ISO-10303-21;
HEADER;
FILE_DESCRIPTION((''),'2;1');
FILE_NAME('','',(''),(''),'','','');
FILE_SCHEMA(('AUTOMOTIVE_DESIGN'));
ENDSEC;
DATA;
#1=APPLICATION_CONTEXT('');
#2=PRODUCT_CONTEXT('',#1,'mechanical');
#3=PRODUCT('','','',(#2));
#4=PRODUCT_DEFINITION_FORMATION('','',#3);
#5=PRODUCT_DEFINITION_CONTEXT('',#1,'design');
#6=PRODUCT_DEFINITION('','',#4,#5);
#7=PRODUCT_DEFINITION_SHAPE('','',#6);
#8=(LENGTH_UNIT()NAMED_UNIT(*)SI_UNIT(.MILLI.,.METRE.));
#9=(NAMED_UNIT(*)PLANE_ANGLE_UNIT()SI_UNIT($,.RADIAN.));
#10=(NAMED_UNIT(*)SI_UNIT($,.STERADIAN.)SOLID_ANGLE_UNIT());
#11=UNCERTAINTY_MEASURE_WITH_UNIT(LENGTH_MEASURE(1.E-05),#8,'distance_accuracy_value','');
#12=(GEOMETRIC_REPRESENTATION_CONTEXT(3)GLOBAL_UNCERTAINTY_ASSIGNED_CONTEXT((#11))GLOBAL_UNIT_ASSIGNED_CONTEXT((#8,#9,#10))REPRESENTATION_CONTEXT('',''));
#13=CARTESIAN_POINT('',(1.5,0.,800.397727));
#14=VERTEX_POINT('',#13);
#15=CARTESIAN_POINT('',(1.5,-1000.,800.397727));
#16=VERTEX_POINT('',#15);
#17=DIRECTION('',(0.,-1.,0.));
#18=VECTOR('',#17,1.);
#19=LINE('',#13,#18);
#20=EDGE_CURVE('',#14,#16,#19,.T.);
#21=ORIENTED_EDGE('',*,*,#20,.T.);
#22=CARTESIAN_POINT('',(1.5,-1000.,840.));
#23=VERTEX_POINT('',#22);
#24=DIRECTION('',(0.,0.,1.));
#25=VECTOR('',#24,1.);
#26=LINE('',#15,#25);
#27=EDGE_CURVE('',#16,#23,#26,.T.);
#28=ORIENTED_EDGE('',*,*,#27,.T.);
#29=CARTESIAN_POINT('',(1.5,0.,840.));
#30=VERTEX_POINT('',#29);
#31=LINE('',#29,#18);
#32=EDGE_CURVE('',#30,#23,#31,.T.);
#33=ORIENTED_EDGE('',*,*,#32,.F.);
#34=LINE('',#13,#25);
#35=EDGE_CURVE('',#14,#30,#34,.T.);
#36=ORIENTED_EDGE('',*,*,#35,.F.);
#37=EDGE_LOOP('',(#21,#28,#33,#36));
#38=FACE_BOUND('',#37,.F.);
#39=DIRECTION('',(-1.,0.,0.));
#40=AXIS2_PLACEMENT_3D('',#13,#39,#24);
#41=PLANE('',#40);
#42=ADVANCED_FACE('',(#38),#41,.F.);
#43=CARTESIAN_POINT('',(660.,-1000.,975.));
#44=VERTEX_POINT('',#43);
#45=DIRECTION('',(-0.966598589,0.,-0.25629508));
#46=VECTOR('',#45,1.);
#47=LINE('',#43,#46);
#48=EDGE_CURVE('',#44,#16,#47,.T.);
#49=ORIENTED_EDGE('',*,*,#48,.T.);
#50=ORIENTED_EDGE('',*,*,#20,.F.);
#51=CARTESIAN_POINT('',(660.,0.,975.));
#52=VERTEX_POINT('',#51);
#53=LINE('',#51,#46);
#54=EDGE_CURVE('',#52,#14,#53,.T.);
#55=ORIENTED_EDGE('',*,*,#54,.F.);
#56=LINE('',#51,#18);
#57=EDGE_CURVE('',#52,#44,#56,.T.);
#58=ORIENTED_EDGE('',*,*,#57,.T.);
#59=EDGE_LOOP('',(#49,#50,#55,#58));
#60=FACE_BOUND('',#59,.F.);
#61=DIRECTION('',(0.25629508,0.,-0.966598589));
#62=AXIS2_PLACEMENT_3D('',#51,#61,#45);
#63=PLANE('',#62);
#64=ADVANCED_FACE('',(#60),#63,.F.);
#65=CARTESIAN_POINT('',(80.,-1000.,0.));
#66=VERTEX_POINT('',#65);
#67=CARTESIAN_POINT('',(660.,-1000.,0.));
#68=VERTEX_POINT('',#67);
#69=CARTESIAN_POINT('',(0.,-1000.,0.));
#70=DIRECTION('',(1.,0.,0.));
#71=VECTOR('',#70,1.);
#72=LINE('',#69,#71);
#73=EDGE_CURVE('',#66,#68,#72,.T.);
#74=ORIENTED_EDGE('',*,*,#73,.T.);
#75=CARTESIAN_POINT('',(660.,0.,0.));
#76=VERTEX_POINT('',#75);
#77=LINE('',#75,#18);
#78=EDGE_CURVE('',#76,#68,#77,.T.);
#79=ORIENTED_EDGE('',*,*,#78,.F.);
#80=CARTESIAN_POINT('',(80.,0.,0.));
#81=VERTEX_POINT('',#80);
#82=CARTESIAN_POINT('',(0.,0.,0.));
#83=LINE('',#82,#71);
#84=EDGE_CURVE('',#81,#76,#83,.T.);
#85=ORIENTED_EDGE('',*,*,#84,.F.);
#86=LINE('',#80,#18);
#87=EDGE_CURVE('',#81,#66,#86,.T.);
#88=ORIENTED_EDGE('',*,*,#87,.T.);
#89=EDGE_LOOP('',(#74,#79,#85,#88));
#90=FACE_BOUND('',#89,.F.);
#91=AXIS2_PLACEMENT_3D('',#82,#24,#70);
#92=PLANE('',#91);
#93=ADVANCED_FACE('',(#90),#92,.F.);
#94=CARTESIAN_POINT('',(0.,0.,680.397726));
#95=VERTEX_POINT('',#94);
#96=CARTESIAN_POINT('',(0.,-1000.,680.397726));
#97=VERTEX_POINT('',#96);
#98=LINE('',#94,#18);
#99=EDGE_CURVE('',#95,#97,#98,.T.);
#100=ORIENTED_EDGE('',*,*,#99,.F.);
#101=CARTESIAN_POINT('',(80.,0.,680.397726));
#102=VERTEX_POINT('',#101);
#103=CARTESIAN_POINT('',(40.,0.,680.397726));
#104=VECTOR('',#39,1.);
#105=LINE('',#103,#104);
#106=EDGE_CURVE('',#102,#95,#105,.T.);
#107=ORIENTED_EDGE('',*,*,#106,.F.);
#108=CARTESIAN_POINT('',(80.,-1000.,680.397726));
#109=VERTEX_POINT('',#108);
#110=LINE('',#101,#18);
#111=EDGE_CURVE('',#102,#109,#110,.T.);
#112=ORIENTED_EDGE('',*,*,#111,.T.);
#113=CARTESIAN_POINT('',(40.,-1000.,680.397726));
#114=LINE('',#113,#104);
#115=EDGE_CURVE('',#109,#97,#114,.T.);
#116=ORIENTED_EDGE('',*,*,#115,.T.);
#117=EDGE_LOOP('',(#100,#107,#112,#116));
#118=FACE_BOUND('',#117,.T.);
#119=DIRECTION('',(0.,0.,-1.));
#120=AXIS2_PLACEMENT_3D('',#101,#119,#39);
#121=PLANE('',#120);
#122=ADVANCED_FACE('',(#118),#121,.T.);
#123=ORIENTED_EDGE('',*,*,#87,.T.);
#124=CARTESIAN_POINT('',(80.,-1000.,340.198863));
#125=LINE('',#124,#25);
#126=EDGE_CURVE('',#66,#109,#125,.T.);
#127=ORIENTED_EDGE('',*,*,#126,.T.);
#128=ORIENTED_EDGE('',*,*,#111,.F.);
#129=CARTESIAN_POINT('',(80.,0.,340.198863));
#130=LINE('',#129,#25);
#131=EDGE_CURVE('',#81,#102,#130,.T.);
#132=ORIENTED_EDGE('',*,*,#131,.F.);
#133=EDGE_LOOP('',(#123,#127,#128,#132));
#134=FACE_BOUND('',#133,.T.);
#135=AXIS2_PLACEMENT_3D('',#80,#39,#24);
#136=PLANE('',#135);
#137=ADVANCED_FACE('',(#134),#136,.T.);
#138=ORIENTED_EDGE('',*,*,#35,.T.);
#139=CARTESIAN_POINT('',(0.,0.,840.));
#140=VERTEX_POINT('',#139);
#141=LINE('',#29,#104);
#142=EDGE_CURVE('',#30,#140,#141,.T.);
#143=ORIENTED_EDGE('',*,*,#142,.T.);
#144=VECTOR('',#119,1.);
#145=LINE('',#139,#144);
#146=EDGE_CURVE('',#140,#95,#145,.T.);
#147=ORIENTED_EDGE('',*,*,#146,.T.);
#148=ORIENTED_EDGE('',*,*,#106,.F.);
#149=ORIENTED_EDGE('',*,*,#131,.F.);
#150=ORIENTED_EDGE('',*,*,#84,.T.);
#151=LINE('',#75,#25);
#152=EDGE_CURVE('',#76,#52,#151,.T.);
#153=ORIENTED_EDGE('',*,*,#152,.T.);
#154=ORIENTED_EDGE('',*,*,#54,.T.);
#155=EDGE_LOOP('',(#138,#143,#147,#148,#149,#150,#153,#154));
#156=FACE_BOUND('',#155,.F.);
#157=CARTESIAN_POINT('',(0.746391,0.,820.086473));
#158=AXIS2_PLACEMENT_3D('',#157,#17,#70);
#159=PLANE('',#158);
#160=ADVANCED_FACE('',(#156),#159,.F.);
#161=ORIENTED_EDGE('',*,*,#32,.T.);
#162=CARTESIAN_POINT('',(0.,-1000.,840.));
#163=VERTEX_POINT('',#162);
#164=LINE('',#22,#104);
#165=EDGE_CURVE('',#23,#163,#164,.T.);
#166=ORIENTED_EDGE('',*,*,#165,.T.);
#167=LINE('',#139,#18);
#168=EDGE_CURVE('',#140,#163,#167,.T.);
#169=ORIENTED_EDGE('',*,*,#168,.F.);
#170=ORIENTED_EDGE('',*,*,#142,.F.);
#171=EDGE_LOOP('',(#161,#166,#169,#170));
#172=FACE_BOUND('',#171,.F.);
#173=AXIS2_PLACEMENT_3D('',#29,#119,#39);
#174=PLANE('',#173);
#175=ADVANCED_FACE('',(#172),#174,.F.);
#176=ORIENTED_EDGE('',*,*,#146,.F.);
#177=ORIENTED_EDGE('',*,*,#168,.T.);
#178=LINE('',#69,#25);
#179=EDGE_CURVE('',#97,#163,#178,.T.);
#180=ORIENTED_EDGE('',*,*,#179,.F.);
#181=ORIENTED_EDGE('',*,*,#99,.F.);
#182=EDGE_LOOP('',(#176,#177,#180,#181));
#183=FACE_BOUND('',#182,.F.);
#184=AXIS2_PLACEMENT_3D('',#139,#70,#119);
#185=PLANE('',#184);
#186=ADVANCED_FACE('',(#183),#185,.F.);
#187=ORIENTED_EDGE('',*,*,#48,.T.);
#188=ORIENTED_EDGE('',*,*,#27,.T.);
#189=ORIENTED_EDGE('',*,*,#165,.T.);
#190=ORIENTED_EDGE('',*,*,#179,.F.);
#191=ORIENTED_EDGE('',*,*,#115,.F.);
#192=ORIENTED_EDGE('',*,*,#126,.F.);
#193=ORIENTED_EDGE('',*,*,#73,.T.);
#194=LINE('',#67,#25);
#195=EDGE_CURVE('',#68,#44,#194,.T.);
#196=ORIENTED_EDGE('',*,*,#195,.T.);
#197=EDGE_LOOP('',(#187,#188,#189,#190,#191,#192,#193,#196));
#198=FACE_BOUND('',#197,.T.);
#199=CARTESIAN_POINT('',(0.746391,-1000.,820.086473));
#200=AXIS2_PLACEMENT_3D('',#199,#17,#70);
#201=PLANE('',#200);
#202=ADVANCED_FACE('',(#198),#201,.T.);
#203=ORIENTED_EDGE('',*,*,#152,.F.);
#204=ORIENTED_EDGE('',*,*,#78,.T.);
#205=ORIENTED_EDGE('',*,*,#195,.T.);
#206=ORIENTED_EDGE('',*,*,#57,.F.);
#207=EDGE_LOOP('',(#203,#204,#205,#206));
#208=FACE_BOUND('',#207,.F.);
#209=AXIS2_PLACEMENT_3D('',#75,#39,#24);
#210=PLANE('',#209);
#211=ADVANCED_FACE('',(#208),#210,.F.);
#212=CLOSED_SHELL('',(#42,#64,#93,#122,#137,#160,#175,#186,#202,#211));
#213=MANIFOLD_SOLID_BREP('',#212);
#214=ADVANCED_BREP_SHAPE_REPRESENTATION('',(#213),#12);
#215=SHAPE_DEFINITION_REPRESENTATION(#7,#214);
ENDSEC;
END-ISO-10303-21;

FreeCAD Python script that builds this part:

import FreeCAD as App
import Part
import Sketcher

V = App.Vector

doc = App.newDocument("Part")
params = doc.addObject("Spreadsheet::Sheet", "Params")
for row, (alias, value) in enumerate([
    ("sketch1_width", "660 mm"),
    ("sketch1_height", "800 mm"),
    ("sketch1_height2", "975 mm"),
    ("pad1_length", "1000 mm"),
    ("sketch2_height", "40 mm"),
    ("sketch2_width", "1.5 mm"),
    ("pad2_length", "1000 mm"),
    ("sketch3_width", "80 mm"),
], start=1):
    params.set(f"A{row}", alias)
    params.set(f"B{row}", "=" + value)
    params.setAlias(f"B{row}", alias)

body = doc.addObject("PartDesign::Body", "Body")

sketch1 = doc.addObject("Sketcher::SketchObject", "Sketch")
body.addObject(sketch1)
sketch1.AttachmentSupport = (doc.XZ_Plane, [""])
sketch1.MapMode = "FlatFace"
sketch1.addGeometry([
    Part.LineSegment(V(0, 800, 0), V(0, 0, 0)),
    Part.LineSegment(V(0, 0, 0), V(660, 0, 0)),
    Part.LineSegment(V(660, 0, 0), V(660, 975, 0)),
    Part.LineSegment(V(660, 975, 0), V(0, 800, 0)),
], False)
sketch1.addConstraint([
    Sketcher.Constraint("Coincident", 0, 2, 1, 1),
    Sketcher.Constraint("Coincident", 1, 2, 2, 1),
    Sketcher.Constraint("Coincident", 2, 2, 3, 1),
    Sketcher.Constraint("Coincident", 3, 2, 0, 1),
    Sketcher.Constraint("Vertical", 0),
    Sketcher.Constraint("Horizontal", 1),
    Sketcher.Constraint("Vertical", 2),
    Sketcher.Constraint("Coincident", 0, 2, -1, 1),
    Sketcher.Constraint("DistanceX", 1, 1, 1, 2, 660.0),
    Sketcher.Constraint("DistanceY", 0, 2, 0, 1, 800.0),
    Sketcher.Constraint("DistanceY", 2, 1, 2, 2, 975.0),
])
sketch1.setExpression("Constraints[8]", "Params.sketch1_width")
sketch1.setExpression("Constraints[9]", "Params.sketch1_height")
sketch1.setExpression("Constraints[10]", "Params.sketch1_height2")
pad1 = doc.addObject("PartDesign::Pad", "Pad")
body.addObject(pad1)
pad1.Profile = sketch1
pad1.setExpression("Length", "Params.pad1_length")

sketch2 = doc.addObject("Sketcher::SketchObject", "Sketch001")
body.addObject(sketch2)
sketch2.AttachmentSupport = (doc.XZ_Plane, [""])
sketch2.MapMode = "FlatFace"
sketch2.addGeometry([
    Part.LineSegment(V(0, 840, 0), V(0, 800, 0)),
    Part.LineSegment(V(0, 800, 0), V(1.5, 800.397727, 0)),
    Part.LineSegment(V(1.5, 800.397727, 0), V(1.5, 840, 0)),
    Part.LineSegment(V(1.5, 840, 0), V(0, 840, 0)),
], False)
sketch2.addConstraint([
    Sketcher.Constraint("Coincident", 0, 2, 1, 1),
    Sketcher.Constraint("Coincident", 1, 2, 2, 1),
    Sketcher.Constraint("Coincident", 2, 2, 3, 1),
    Sketcher.Constraint("Coincident", 3, 2, 0, 1),
    Sketcher.Constraint("Vertical", 0),
    Sketcher.Constraint("Vertical", 2),
    Sketcher.Constraint("Horizontal", 3),
    Sketcher.Constraint("PointOnObject", 0, 2, -2),
    Sketcher.Constraint("DistanceY", 0, 2, 0, 1, 40.0),
    Sketcher.Constraint("DistanceX", 3, 2, 3, 1, 1.5),
    Sketcher.Constraint("DistanceY", -1, 1, 0, 2, 800.0),
    Sketcher.Constraint("DistanceY", 2, 1, 2, 2, 39.602273),
])
sketch2.setExpression("Constraints[8]", "Params.sketch2_height")
sketch2.setExpression("Constraints[9]", "Params.sketch2_width")
pad2 = doc.addObject("PartDesign::Pad", "Pad001")
body.addObject(pad2)
pad2.Profile = sketch2
pad2.setExpression("Length", "Params.pad2_length")

sketch3 = doc.addObject("Sketcher::SketchObject", "Sketch002")
body.addObject(sketch3)
sketch3.AttachmentSupport = (doc.XZ_Plane, [""])
sketch3.MapMode = "FlatFace"
sketch3.addGeometry([
    Part.LineSegment(V(80, 680.397726, 0), V(80, 0, 0)),
    Part.LineSegment(V(80, 0, 0), V(0, 0, 0)),
    Part.LineSegment(V(0, 0, 0), V(0, 680.397726, 0)),
    Part.LineSegment(V(0, 680.397726, 0), V(80, 680.397726, 0)),
], False)
sketch3.addConstraint([
    Sketcher.Constraint("Coincident", 0, 2, 1, 1),
    Sketcher.Constraint("Coincident", 1, 2, 2, 1),
    Sketcher.Constraint("Coincident", 2, 2, 3, 1),
    Sketcher.Constraint("Coincident", 3, 2, 0, 1),
    Sketcher.Constraint("Vertical", 0),
    Sketcher.Constraint("Horizontal", 1),
    Sketcher.Constraint("Vertical", 2),
    Sketcher.Constraint("Horizontal", 3),
    Sketcher.Constraint("Coincident", 1, 2, -1, 1),
    Sketcher.Constraint("DistanceX", 1, 2, 1, 1, 80.0),
    Sketcher.Constraint("DistanceY", 0, 2, 0, 1, 680.397727),
])
sketch3.setExpression("Constraints[9]", "Params.sketch3_width")
pocket1 = doc.addObject("PartDesign::Pocket", "Pocket")
body.addObject(pocket1)
pocket1.Profile = sketch3
pocket1.Type = "ThroughAll"
pocket1.Reversed = True

doc.recompute()
